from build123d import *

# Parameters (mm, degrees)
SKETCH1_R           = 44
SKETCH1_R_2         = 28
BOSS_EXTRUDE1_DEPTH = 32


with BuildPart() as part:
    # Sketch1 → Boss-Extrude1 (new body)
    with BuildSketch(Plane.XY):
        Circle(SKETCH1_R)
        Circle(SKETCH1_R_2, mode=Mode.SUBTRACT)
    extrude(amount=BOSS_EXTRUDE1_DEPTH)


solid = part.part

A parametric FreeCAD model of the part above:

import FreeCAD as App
import Part
import Sketcher

V = App.Vector
Q = App.Units.Quantity

doc = App.newDocument("Part")
body = doc.addObject("PartDesign::Body", "Body")

# Sketch on XY plane
sketch1 = body.newObject("Sketcher::SketchObject", "Sketch")
sketch1.AttachmentSupport = (doc.getObject("XY_Plane"), [""])
sketch1.MapMode = "FlatFace"
sketch1.addGeometry([
    Part.Circle(V(0, 0, 0), V(0, 0, 1), 44),
    Part.Circle(V(0, 0, 0), V(0, 0, 1), 28),
], False)
sketch1.addConstraint([
    Sketcher.Constraint("Coincident", 0, 3, -1, 1),
    Sketcher.Constraint("Coincident", 1, 3, -1, 1),
    Sketcher.Constraint("Diameter", 0, Q("88 mm")),
    Sketcher.Constraint("Diameter", 1, Q("56 mm")),
])
pad1 = body.newObject("PartDesign::Pad", "Pad")
pad1.Profile = sketch1
pad1.Length = 32

doc.recompute()
